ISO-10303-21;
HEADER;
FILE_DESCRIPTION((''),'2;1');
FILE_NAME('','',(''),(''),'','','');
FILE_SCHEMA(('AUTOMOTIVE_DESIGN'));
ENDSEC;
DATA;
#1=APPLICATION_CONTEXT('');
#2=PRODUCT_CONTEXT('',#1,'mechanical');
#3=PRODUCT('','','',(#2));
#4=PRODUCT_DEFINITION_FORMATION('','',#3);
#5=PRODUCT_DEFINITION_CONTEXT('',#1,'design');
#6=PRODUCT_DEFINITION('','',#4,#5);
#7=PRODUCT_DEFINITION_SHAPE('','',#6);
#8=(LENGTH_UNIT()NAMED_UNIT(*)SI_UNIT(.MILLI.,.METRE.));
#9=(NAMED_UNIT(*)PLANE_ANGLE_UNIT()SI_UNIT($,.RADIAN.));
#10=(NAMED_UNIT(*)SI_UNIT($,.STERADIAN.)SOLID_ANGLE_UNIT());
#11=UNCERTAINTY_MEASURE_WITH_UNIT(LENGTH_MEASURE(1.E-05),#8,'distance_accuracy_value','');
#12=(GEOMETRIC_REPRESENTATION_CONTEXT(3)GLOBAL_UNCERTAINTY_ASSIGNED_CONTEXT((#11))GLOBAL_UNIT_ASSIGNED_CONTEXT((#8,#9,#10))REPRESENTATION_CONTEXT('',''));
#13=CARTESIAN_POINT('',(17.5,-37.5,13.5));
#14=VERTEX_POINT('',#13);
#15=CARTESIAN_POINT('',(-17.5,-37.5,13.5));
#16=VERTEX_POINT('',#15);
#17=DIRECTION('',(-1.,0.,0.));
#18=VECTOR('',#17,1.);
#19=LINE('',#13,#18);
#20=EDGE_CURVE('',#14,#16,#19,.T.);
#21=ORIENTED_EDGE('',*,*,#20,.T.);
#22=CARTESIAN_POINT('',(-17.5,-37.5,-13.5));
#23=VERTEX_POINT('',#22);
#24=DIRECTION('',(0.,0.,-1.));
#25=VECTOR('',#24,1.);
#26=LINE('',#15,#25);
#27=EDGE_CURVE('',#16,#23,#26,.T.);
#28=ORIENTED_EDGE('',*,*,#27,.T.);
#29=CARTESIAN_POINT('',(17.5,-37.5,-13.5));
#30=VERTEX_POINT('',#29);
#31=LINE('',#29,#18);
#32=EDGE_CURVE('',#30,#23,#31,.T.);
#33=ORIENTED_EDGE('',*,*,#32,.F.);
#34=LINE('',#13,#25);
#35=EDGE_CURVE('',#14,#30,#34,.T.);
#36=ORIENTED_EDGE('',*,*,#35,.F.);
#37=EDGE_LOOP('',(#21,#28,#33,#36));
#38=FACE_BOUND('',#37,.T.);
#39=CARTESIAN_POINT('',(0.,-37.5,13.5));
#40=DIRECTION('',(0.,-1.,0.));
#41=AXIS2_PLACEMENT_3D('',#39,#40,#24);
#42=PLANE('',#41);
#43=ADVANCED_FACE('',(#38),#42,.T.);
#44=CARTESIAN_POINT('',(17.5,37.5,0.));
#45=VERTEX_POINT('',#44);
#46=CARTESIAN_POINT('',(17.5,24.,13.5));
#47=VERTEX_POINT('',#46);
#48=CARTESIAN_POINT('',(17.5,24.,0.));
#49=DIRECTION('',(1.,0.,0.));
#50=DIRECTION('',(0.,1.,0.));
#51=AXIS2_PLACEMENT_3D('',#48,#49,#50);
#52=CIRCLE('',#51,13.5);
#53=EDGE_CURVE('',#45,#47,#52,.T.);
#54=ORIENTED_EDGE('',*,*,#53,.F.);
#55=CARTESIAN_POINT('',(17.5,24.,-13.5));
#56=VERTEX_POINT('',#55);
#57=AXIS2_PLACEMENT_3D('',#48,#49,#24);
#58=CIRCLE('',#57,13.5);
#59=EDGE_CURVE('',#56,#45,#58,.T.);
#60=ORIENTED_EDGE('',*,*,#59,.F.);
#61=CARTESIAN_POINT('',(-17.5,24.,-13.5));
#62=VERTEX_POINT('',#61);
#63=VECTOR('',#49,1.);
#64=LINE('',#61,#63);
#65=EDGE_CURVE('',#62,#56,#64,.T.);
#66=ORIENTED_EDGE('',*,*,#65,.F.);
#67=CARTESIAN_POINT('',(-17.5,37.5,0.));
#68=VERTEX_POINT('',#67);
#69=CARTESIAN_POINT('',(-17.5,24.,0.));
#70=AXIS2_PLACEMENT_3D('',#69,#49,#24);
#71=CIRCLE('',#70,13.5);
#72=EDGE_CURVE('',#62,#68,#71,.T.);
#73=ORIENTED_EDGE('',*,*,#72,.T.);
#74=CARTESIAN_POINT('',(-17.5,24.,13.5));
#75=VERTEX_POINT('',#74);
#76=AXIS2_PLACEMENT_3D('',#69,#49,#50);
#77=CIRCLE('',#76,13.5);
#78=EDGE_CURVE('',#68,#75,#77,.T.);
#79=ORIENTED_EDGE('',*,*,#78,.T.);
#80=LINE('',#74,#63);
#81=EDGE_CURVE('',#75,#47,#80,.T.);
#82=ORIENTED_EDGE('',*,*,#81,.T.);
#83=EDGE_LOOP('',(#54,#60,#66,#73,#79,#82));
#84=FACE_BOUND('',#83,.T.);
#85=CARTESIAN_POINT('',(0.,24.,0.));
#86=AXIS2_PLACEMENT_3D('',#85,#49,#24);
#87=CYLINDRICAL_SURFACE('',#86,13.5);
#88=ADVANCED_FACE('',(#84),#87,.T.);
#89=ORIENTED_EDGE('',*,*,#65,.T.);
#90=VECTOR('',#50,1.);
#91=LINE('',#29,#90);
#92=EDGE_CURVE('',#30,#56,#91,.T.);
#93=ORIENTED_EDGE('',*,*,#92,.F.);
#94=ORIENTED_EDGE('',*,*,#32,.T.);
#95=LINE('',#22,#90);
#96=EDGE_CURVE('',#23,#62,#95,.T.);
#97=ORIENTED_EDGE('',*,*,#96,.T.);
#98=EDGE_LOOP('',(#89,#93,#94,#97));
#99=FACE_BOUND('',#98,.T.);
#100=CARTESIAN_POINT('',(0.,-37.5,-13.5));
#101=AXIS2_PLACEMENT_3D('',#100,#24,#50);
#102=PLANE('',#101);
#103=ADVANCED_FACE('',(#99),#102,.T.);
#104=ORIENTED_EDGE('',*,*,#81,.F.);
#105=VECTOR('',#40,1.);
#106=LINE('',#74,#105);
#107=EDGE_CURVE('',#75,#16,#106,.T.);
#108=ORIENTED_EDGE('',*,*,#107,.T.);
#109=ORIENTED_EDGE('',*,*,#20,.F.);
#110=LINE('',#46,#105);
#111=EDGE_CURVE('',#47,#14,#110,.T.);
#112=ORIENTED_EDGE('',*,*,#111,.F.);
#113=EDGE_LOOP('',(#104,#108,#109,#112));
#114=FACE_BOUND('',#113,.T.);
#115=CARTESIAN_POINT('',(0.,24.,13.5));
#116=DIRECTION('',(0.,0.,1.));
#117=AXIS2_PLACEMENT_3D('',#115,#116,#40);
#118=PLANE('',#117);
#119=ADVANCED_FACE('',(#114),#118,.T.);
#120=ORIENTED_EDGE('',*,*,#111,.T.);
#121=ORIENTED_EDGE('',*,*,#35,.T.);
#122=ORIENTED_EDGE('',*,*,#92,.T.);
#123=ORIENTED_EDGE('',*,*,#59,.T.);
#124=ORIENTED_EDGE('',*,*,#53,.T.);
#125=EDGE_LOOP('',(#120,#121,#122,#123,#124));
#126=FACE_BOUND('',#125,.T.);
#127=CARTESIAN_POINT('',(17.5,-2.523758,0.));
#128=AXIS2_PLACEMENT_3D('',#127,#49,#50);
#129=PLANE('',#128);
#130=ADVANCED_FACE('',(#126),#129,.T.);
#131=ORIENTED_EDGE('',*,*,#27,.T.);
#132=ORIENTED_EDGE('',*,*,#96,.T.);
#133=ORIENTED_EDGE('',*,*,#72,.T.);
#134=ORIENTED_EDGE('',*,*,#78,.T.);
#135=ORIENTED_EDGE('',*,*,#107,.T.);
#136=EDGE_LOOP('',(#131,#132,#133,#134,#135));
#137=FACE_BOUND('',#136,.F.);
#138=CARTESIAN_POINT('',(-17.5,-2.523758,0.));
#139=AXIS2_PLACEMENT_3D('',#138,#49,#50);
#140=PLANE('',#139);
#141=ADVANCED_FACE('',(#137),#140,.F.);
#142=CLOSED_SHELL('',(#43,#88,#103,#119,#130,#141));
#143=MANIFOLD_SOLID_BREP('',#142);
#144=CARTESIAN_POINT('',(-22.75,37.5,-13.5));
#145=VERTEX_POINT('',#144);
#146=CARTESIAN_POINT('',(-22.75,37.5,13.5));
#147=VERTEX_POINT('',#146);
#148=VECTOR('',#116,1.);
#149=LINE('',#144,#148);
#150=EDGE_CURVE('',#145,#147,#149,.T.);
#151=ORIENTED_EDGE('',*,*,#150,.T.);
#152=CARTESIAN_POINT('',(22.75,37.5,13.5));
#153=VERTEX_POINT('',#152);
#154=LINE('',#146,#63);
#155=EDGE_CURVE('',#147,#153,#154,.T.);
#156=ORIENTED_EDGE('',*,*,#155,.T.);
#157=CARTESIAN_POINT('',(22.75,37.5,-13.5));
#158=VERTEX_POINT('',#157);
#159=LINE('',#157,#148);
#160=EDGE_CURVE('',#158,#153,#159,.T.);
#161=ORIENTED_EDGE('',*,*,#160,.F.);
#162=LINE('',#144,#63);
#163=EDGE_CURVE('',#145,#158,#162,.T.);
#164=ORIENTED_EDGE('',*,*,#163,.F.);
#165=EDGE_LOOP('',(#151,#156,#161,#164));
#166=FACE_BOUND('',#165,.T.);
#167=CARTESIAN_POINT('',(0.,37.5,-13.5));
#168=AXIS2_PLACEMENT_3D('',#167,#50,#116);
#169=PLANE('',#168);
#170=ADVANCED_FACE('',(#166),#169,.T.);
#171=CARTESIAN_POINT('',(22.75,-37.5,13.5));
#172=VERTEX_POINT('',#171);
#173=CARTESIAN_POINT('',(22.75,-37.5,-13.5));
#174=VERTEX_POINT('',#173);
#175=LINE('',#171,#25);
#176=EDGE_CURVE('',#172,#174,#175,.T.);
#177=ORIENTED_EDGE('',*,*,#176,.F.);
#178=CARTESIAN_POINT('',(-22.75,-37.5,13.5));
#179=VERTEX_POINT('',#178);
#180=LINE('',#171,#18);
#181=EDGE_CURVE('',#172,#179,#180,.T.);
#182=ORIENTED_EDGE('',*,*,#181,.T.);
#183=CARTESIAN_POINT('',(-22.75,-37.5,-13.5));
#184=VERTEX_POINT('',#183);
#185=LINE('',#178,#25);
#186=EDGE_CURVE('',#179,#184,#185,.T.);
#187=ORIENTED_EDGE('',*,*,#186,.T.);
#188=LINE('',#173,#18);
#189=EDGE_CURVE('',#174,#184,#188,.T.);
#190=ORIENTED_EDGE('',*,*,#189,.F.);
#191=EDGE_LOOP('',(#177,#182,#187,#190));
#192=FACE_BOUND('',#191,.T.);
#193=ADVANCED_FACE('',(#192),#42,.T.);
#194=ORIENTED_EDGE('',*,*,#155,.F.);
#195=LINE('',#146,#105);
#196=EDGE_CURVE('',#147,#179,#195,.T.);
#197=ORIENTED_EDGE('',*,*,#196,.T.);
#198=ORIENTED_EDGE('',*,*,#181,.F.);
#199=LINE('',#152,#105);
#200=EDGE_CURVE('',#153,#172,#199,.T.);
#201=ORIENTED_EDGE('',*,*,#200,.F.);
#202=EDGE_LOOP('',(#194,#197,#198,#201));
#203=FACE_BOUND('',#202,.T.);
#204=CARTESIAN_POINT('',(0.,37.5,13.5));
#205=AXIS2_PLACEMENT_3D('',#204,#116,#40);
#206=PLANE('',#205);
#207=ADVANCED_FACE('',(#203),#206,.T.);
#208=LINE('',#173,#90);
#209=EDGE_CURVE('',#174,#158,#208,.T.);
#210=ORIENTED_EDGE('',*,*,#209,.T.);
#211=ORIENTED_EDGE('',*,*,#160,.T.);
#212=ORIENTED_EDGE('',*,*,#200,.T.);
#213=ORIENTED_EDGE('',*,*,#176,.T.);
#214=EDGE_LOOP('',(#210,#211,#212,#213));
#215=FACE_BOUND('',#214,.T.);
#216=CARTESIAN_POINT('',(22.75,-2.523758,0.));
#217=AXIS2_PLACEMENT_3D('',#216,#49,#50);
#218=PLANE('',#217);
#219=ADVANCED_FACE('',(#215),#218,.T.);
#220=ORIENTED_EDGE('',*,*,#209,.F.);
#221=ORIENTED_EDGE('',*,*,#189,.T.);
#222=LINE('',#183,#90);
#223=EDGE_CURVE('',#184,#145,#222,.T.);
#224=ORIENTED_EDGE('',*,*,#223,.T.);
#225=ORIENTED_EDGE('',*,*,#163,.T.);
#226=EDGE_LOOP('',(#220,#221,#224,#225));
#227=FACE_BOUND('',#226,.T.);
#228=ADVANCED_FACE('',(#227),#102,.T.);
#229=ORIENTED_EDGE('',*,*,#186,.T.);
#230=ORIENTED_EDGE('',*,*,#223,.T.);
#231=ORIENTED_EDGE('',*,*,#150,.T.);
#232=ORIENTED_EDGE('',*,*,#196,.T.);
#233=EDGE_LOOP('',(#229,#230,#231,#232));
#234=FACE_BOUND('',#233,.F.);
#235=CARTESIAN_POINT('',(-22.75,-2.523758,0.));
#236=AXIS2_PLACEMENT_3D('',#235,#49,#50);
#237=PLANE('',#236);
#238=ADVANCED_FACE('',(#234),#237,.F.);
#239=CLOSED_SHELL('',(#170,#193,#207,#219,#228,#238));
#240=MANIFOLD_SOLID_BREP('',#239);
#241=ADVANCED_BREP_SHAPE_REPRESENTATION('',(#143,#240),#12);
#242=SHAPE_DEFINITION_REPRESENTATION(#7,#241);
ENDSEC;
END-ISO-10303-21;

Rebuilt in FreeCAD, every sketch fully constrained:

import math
import FreeCAD as App
import Part
import Sketcher

V = App.Vector
Q = App.Units.Quantity


def add_polygon(sketch, points):
    """Adds a closed chain of lines whose ends are joined by coincident constraints."""
    first, n = sketch.GeometryCount, len(points)
    for a, b in zip(points, points[1:] + points[:1]):
        sketch.addGeometry(Part.LineSegment(App.Vector(*a, 0), App.Vector(*b, 0)), False)
    for i in range(n):
        sketch.addConstraint(Sketcher.Constraint("Coincident", first + i, 2, first + (i + 1) % n, 1))

doc = App.newDocument("Part")
body = doc.addObject("PartDesign::Body", "Body")

sketch1 = doc.addObject("Sketcher::SketchObject", "Sketch")
body.addObject(sketch1)
sketch1.AttachmentSupport = (doc.YZ_Plane, [""])
sketch1.MapMode = "FlatFace"
add_polygon(sketch1, [(-38, -14), (38, -14), (38, 14), (-38, 14)])
sketch1.addConstraint(Sketcher.Constraint("Horizontal", 0))
sketch1.addConstraint(Sketcher.Constraint("Vertical", 1))
sketch1.addConstraint(Sketcher.Constraint("Horizontal", 2))
sketch1.addConstraint(Sketcher.Constraint("Vertical", 3))
sketch1.addConstraint(Sketcher.Constraint("Symmetric", 0, 2, 2, 2, -1, 1))
sketch1.addConstraint(Sketcher.Constraint("DistanceX", 0, 1, 0, 2, Q("75 mm")))
sketch1.addConstraint(Sketcher.Constraint("DistanceY", 1, 1, 1, 2, Q("27 mm")))
pad1 = doc.addObject("PartDesign::Pad", "Pad")
body.addObject(pad1)
pad1.Profile = sketch1
pad1.Length = 45.5
pad1.Midplane = True
body2 = doc.addObject("PartDesign::Body", "Body001")

sketch2 = doc.addObject("Sketcher::SketchObject", "Sketch001")
body2.addObject(sketch2)
sketch2.AttachmentSupport = (doc.getObject("YZ_Plane001"), [""])
sketch2.MapMode = "FlatFace"
sketch2.addGeometry(Part.LineSegment(V(-38, -14, 0), V(24, -14, 0)), False)
sketch2.addGeometry(Part.ArcOfCircle(Part.Circle(V(24, 0, 0), V(0, 0, 1), 14), math.radians(-90), math.radians(0)), False)
sketch2.addGeometry(Part.ArcOfCircle(Part.Circle(V(24, 0, 0), V(0, 0, 1), 14), math.radians(0), math.radians(90)), False)
sketch2.addGeometry(Part.LineSegment(V(24, 14, 0), V(-38, 14, 0)), False)
sketch2.addGeometry(Part.LineSegment(V(-38, 14, 0), V(-38, -14, 0)), False)
sketch2.addConstraint(Sketcher.Constraint("Tangent", 0, 2, 1, 1))
sketch2.addConstraint(Sketcher.Constraint("Tangent", 1, 2, 2, 1))
sketch2.addConstraint(Sketcher.Constraint("Tangent", 2, 2, 3, 1))
sketch2.addConstraint(Sketcher.Constraint("Coincident", 3, 2, 4, 1))
sketch2.addConstraint(Sketcher.Constraint("Coincident", 4, 2, 0, 1))
sketch2.addConstraint(Sketcher.Constraint("Horizontal", 0))
sketch2.addConstraint(Sketcher.Constraint("Horizontal", 3))
sketch2.addConstraint(Sketcher.Constraint("Vertical", 4))
sketch2.addConstraint(Sketcher.Constraint("Equal", 1, 2))
sketch2.addConstraint(Sketcher.Constraint("PointOnObject", 1, 3, -1))
sketch2.addConstraint(Sketcher.Constraint("PointOnObject", 1, 2, -1))
sketch2.addConstraint(Sketcher.Constraint("Radius", 1, Q("13.5 mm")))
sketch2.addConstraint(Sketcher.Constraint("DistanceX", 0, 1, 0, 2, Q("61.5 mm")))
sketch2.addConstraint(Sketcher.Constraint("DistanceX", -1, 1, 1, 3, Q("24 mm")))
pad2 = doc.addObject("PartDesign::Pad", "Pad001")
body2.addObject(pad2)
pad2.Profile = sketch2
pad2.Length = 35
pad2.Midplane = True

doc.recompute()
